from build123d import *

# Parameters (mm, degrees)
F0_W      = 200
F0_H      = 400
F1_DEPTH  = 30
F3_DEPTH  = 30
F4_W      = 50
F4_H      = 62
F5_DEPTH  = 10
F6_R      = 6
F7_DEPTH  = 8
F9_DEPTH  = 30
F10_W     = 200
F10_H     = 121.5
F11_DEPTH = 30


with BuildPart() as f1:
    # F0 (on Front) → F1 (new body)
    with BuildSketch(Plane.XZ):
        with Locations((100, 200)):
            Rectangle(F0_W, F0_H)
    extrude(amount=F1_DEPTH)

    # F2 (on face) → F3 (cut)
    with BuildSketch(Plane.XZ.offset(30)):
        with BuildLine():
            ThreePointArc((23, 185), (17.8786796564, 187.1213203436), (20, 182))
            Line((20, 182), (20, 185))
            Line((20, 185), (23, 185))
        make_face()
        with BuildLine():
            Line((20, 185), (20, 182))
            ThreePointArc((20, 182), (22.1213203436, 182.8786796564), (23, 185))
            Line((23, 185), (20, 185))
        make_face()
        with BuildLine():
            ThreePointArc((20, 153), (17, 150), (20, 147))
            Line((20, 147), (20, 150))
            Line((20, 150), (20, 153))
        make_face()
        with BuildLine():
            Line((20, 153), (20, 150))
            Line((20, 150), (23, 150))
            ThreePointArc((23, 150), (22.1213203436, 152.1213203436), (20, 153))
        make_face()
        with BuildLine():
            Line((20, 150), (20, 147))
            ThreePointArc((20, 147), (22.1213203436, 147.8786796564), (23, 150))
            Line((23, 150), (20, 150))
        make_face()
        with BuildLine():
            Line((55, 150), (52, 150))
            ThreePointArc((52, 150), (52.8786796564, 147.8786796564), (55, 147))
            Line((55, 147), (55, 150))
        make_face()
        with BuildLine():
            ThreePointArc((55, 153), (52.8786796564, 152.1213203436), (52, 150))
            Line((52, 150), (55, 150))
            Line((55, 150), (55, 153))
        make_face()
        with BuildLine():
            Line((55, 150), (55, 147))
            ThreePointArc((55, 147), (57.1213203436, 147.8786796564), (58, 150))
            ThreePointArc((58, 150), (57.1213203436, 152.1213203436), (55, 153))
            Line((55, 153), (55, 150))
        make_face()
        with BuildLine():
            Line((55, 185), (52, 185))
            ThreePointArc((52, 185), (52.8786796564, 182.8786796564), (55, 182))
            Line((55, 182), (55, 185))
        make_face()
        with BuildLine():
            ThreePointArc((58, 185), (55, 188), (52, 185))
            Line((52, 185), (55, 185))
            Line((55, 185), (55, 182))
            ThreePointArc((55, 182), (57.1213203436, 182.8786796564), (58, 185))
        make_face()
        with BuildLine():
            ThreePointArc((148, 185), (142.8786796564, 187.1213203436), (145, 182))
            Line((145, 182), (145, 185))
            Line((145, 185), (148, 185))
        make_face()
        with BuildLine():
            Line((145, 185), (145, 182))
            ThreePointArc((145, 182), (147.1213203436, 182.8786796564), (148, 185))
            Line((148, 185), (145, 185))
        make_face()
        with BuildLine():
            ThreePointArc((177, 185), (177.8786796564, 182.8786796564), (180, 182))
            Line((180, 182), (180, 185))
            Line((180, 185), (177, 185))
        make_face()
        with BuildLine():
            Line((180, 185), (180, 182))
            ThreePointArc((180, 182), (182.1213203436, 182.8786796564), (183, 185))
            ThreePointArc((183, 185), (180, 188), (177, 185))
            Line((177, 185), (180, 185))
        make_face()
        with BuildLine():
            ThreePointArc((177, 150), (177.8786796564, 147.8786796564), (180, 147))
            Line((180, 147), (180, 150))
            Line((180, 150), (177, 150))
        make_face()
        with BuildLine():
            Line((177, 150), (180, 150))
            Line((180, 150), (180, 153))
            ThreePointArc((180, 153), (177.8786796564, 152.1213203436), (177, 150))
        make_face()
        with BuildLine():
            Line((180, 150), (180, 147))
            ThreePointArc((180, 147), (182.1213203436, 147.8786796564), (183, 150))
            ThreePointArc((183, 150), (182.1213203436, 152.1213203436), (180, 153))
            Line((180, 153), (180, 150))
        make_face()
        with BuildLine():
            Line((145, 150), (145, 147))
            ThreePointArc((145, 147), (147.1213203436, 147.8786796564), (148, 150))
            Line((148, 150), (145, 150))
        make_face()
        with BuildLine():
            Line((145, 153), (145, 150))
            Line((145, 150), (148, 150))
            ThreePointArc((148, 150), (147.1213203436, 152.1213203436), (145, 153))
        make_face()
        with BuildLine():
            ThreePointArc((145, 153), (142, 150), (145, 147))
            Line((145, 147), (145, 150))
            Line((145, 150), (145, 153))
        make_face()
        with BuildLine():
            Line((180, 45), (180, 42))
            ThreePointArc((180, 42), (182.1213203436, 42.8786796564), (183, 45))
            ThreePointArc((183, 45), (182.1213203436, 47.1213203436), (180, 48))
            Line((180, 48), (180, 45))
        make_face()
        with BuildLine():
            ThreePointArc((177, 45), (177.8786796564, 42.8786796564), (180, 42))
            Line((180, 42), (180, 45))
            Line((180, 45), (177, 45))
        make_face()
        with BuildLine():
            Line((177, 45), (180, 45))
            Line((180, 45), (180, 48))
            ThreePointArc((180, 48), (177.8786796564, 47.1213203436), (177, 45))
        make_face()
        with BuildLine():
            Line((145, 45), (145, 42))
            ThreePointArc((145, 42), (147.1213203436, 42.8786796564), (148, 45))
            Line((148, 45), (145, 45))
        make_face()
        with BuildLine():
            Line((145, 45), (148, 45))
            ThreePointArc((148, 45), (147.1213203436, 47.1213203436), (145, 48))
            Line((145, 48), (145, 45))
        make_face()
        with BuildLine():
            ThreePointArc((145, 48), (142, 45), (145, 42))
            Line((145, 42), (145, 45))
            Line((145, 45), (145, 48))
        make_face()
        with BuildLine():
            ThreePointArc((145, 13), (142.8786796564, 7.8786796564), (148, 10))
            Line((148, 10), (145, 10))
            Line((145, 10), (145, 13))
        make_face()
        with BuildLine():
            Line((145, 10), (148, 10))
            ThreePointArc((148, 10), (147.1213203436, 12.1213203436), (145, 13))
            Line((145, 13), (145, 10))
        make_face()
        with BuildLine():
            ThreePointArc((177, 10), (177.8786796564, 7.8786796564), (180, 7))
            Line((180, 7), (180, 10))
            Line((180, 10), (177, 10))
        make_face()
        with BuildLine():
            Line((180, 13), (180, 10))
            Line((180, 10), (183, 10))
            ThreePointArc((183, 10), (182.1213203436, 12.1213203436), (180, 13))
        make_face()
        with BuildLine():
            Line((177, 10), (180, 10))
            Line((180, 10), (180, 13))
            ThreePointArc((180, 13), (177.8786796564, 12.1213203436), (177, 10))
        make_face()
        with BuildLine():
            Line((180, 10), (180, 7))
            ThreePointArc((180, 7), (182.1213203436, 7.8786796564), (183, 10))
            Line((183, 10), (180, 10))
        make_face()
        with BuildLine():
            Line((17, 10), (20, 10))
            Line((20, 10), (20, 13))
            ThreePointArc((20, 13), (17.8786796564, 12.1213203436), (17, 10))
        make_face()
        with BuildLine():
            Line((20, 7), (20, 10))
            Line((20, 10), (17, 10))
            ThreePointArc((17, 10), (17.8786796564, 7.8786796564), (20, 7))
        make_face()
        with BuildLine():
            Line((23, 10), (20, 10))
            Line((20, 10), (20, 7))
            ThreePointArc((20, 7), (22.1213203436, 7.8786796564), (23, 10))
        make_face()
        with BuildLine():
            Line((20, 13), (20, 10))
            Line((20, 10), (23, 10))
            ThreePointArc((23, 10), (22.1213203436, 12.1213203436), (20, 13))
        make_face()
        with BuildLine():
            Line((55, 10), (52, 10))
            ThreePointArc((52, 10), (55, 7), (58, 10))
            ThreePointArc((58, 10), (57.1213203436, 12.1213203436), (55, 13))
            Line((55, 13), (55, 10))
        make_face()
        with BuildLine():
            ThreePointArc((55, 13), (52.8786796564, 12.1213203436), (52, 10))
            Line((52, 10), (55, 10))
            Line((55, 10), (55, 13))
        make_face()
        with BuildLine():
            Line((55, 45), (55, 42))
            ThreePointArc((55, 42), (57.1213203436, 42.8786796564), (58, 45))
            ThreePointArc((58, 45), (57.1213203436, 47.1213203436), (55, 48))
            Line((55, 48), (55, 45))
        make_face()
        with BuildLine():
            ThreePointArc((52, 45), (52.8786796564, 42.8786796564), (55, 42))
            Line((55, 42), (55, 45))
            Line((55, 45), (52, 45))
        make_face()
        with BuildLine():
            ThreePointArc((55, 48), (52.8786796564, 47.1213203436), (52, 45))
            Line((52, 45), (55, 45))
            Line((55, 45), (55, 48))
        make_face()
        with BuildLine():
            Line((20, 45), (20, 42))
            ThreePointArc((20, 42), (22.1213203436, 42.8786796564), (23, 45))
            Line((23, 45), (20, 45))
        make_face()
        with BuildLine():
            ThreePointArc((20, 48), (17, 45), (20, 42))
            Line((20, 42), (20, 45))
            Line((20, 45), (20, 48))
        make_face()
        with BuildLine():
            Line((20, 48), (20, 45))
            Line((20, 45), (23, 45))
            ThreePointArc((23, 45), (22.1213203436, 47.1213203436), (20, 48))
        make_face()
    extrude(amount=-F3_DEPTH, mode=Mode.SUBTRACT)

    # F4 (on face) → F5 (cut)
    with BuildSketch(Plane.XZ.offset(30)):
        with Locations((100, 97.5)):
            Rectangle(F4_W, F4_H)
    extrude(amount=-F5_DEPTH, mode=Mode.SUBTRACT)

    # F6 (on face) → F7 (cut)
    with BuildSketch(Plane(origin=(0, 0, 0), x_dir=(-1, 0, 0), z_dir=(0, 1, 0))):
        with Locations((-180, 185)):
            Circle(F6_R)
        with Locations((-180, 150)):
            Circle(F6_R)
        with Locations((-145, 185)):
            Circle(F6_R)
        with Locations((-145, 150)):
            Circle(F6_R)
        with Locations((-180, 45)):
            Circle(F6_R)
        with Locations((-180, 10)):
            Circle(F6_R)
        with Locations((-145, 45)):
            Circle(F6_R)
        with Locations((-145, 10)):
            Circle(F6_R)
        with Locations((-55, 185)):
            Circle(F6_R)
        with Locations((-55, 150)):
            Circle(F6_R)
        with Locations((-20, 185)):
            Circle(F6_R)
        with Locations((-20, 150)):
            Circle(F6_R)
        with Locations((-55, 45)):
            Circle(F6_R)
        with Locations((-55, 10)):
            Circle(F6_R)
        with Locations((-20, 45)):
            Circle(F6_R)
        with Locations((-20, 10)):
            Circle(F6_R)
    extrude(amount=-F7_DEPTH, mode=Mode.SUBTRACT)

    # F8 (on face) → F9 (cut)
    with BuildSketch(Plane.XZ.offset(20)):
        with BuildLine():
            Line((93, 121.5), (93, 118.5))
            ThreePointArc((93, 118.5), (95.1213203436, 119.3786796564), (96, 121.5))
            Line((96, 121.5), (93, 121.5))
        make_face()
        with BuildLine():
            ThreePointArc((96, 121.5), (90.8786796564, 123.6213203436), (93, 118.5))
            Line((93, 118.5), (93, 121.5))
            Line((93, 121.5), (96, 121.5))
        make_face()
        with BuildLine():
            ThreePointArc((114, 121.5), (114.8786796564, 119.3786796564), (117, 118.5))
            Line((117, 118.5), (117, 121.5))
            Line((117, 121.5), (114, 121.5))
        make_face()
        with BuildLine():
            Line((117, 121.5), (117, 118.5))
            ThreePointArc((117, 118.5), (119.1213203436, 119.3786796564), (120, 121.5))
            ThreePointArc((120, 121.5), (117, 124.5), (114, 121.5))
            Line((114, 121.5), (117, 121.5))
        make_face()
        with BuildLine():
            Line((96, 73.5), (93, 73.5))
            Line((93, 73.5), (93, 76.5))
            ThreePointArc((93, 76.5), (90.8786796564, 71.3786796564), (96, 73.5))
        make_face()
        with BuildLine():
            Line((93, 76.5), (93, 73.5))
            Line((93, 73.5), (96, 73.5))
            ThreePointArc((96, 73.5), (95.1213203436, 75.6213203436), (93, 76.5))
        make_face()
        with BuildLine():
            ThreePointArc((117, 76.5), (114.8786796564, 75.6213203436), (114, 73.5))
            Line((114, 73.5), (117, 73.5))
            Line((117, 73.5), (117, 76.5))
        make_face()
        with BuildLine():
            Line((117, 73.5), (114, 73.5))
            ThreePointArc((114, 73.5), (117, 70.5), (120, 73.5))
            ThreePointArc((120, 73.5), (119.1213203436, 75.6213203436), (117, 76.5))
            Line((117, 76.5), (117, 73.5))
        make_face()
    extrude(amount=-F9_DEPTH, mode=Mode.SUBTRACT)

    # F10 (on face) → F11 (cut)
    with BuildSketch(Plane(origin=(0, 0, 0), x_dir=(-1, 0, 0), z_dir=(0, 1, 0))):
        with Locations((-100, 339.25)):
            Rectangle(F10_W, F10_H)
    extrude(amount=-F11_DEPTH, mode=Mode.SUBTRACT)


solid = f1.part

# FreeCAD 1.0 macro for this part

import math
import FreeCAD as App
import Part
import Sketcher
from FreeCAD import Vector

doc = App.newDocument("Part")
body = doc.addObject("PartDesign::Body", "Body")

sketch1 = body.newObject("Sketcher::SketchObject", "Sketch")
sketch1.AttachmentSupport = (doc.getObject("XZ_Plane"), [""])
sketch1.MapMode = "FlatFace"
sketch1.addGeometry([
    Part.LineSegment(Vector(0, 400, 0), Vector(0, 0, 0)),
    Part.LineSegment(Vector(0, 0, 0), Vector(200, 0, 0)),
    Part.LineSegment(Vector(200, 0, 0), Vector(200, 400, 0)),
    Part.LineSegment(Vector(200, 400, 0), Vector(0, 400, 0)),
], False)
sketch1.addConstraint([
    Sketcher.Constraint("Coincident", 0, 2, 1, 1),
    Sketcher.Constraint("Coincident", 1, 2, 2, 1),
    Sketcher.Constraint("Coincident", 2, 2, 3, 1),
    Sketcher.Constraint("Coincident", 3, 2, 0, 1),
    Sketcher.Constraint("Vertical", 0),
    Sketcher.Constraint("Horizontal", 1),
    Sketcher.Constraint("Vertical", 2),
    Sketcher.Constraint("Horizontal", 3),
    Sketcher.Constraint("Coincident", 0, 2, -1, 1),
    Sketcher.Constraint("DistanceX", 1, 1, 1, 2, 200.0),
    Sketcher.Constraint("DistanceY", 0, 2, 0, 1, 400.0),
])
pad1 = body.newObject("PartDesign::Pad", "Pad")
pad1.Profile = sketch1
pad1.Length = 30

sketch2 = body.newObject("Sketcher::SketchObject", "Sketch001")
sketch2.AttachmentSupport = (doc.getObject("XZ_Plane"), [""])
sketch2.MapMode = "FlatFace"
sketch2.AttachmentOffset = App.Placement(Vector(0, 0, 30), App.Rotation())
sketch2.addGeometry([
    Part.ArcOfCircle(Part.Circle(Vector(20, 185, 0), Vector(0, 0, 1), 3), math.radians(0), math.radians(270)),
    Part.ArcOfCircle(Part.Circle(Vector(20, 185, 0), Vector(0, 0, 1), 3), math.radians(-90), math.radians(0)),
    Part.ArcOfCircle(Part.Circle(Vector(20, 150, 0), Vector(0, 0, 1), 3), math.radians(90), math.radians(270)),
    Part.ArcOfCircle(Part.Circle(Vector(20, 150, 0), Vector(0, 0, 1), 3), math.radians(-90), math.radians(0)),
    Part.ArcOfCircle(Part.Circle(Vector(20, 150, 0), Vector(0, 0, 1), 3), math.radians(0), math.radians(90)),
    Part.ArcOfCircle(Part.Circle(Vector(55, 150, 0), Vector(0, 0, 1), 3), math.radians(180), math.radians(270)),
    Part.ArcOfCircle(Part.Circle(Vector(55, 150, 0), Vector(0, 0, 1), 3), math.radians(-90), math.radians(0)),
    Part.ArcOfCircle(Part.Circle(Vector(55, 150, 0), Vector(0, 0, 1), 3), math.radians(0), math.radians(90)),
    Part.ArcOfCircle(Part.Circle(Vector(55, 150, 0), Vector(0, 0, 1), 3), math.radians(90), math.radians(180)),
    Part.ArcOfCircle(Part.Circle(Vector(55, 185, 0), Vector(0, 0, 1), 3), math.radians(180), math.radians(270)),
    Part.ArcOfCircle(Part.Circle(Vector(55, 185, 0), Vector(0, 0, 1), 3), math.radians(-90), math.radians(0)),
    Part.ArcOfCircle(Part.Circle(Vector(55, 185, 0), Vector(0, 0, 1), 3), math.radians(0), math.radians(180)),
    Part.ArcOfCircle(Part.Circle(Vector(145, 185, 0), Vector(0, 0, 1), 3), math.radians(0), math.radians(270)),
    Part.ArcOfCircle(Part.Circle(Vector(145, 185, 0), Vector(0, 0, 1), 3), math.radians(-90), math.radians(0)),
    Part.ArcOfCircle(Part.Circle(Vector(180, 185, 0), Vector(0, 0, 1), 3), math.radians(180), math.radians(270)),
    Part.ArcOfCircle(Part.Circle(Vector(180, 185, 0), Vector(0, 0, 1), 3), math.radians(-90), math.radians(0)),
    Part.ArcOfCircle(Part.Circle(Vector(180, 185, 0), Vector(0, 0, 1), 3), math.radians(0), math.radians(180)),
    Part.ArcOfCircle(Part.Circle(Vector(180, 150, 0), Vector(0, 0, 1), 3), math.radians(180), math.radians(270)),
    Part.ArcOfCircle(Part.Circle(Vector(180, 150, 0), Vector(0, 0, 1), 3), math.radians(-90), math.radians(0)),
    Part.ArcOfCircle(Part.Circle(Vector(180, 150, 0), Vector(0, 0, 1), 3), math.radians(0), math.radians(90)),
    Part.ArcOfCircle(Part.Circle(Vector(180, 150, 0), Vector(0, 0, 1), 3), math.radians(90), math.radians(180)),
    Part.ArcOfCircle(Part.Circle(Vector(145, 150, 0), Vector(0, 0, 1), 3), math.radians(-90), math.radians(0)),
    Part.ArcOfCircle(Part.Circle(Vector(145, 150, 0), Vector(0, 0, 1), 3), math.radians(0), math.radians(90)),
    Part.ArcOfCircle(Part.Circle(Vector(145, 150, 0), Vector(0, 0, 1), 3), math.radians(90), math.radians(270)),
    Part.ArcOfCircle(Part.Circle(Vector(180, 45, 0), Vector(0, 0, 1), 3), math.radians(-90), math.radians(0)),
    Part.ArcOfCircle(Part.Circle(Vector(180, 45, 0), Vector(0, 0, 1), 3), math.radians(0), math.radians(90)),
    Part.ArcOfCircle(Part.Circle(Vector(180, 45, 0), Vector(0, 0, 1), 3), math.radians(90), math.radians(180)),
    Part.ArcOfCircle(Part.Circle(Vector(180, 45, 0), Vector(0, 0, 1), 3), math.radians(180), math.radians(270)),
    Part.ArcOfCircle(Part.Circle(Vector(145, 45, 0), Vector(0, 0, 1), 3), math.radians(-90), math.radians(0)),
    Part.ArcOfCircle(Part.Circle(Vector(145, 45, 0), Vector(0, 0, 1), 3), math.radians(0), math.radians(90)),
    Part.ArcOfCircle(Part.Circle(Vector(145, 45, 0), Vector(0, 0, 1), 3), math.radians(90), math.radians(270)),
    Part.ArcOfCircle(Part.Circle(Vector(145, 10, 0), Vector(0, 0, 1), 3), math.radians(90), math.radians(360)),
    Part.ArcOfCircle(Part.Circle(Vector(145, 10, 0), Vector(0, 0, 1), 3), math.radians(0), math.radians(90)),
    Part.ArcOfCircle(Part.Circle(Vector(180, 10, 0), Vector(0, 0, 1), 3), math.radians(180), math.radians(270)),
    Part.ArcOfCircle(Part.Circle(Vector(180, 10, 0), Vector(0, 0, 1), 3), math.radians(-90), math.radians(0)),
    Part.ArcOfCircle(Part.Circle(Vector(180, 10, 0), Vector(0, 0, 1), 3), math.radians(0), math.radians(90)),
    Part.ArcOfCircle(Part.Circle(Vector(180, 10, 0), Vector(0, 0, 1), 3), math.radians(90), math.radians(180)),
    Part.ArcOfCircle(Part.Circle(Vector(20, 10, 0), Vector(0, 0, 1), 3), math.radians(90), math.radians(180)),
    Part.ArcOfCircle(Part.Circle(Vector(20, 10, 0), Vector(0, 0, 1), 3), math.radians(180), math.radians(270)),
    Part.ArcOfCircle(Part.Circle(Vector(20, 10, 0), Vector(0, 0, 1), 3), math.radians(-90), math.radians(0)),
    Part.ArcOfCircle(Part.Circle(Vector(20, 10, 0), Vector(0, 0, 1), 3), math.radians(0), math.radians(90)),
    Part.ArcOfCircle(Part.Circle(Vector(55, 10, 0), Vector(0, 0, 1), 3), math.radians(180), math.radians(360)),
    Part.ArcOfCircle(Part.Circle(Vector(55, 10, 0), Vector(0, 0, 1), 3), math.radians(0), math.radians(90)),
    Part.ArcOfCircle(Part.Circle(Vector(55, 10, 0), Vector(0, 0, 1), 3), math.radians(90), math.radians(180)),
    Part.ArcOfCircle(Part.Circle(Vector(55, 45, 0), Vector(0, 0, 1), 3), math.radians(-90), math.radians(0)),
    Part.ArcOfCircle(Part.Circle(Vector(55, 45, 0), Vector(0, 0, 1), 3), math.radians(0), math.radians(90)),
    Part.ArcOfCircle(Part.Circle(Vector(55, 45, 0), Vector(0, 0, 1), 3), math.radians(90), math.radians(180)),
    Part.ArcOfCircle(Part.Circle(Vector(55, 45, 0), Vector(0, 0, 1), 3), math.radians(180), math.radians(270)),
    Part.ArcOfCircle(Part.Circle(Vector(20, 45, 0), Vector(0, 0, 1), 3), math.radians(-90), math.radians(0)),
    Part.ArcOfCircle(Part.Circle(Vector(20, 45, 0), Vector(0, 0, 1), 3), math.radians(0), math.radians(90)),
    Part.ArcOfCircle(Part.Circle(Vector(20, 45, 0), Vector(0, 0, 1), 3), math.radians(90), math.radians(270)),
], False)
sketch2.addConstraint([
    Sketcher.Constraint("Tangent", 0, 1, 1, 2),
    Sketcher.Constraint("Coincident", 1, 1, 0, 2),
    Sketcher.Constraint("Tangent", 2, 2, 3, 1),
    Sketcher.Constraint("Tangent", 3, 2, 4, 1),
    Sketcher.Constraint("Tangent", 4, 2, 2, 1),
    Sketcher.Constraint("Tangent", 5, 2, 6, 1),
    Sketcher.Constraint("Tangent", 6, 2, 7, 1),
    Sketcher.Constraint("Tangent", 7, 2, 8, 1),
    Sketcher.Constraint("Tangent", 8, 2, 5, 1),
    Sketcher.Constraint("Tangent", 9, 2, 10, 1),
    Sketcher.Constraint("Tangent", 10, 2, 11, 1),
    Sketcher.Constraint("Tangent", 11, 2, 9, 1),
    Sketcher.Constraint("Tangent", 12, 1, 13, 2),
    Sketcher.Constraint("Coincident", 13, 1, 12, 2),
    Sketcher.Constraint("Tangent", 14, 2, 15, 1),
    Sketcher.Constraint("Tangent", 15, 2, 16, 1),
    Sketcher.Constraint("Tangent", 16, 2, 14, 1),
    Sketcher.Constraint("Tangent", 17, 2, 18, 1),
    Sketcher.Constraint("Tangent", 18, 2, 19, 1),
    Sketcher.Constraint("Tangent", 19, 2, 20, 1),
    Sketcher.Constraint("Tangent", 20, 2, 17, 1),
    Sketcher.Constraint("Tangent", 21, 2, 22, 1),
    Sketcher.Constraint("Tangent", 22, 2, 23, 1),
    Sketcher.Constraint("Tangent", 23, 2, 21, 1),
    Sketcher.Constraint("Tangent", 24, 2, 25, 1),
    Sketcher.Constraint("Tangent", 25, 2, 26, 1),
    Sketcher.Constraint("Tangent", 26, 2, 27, 1),
    Sketcher.Constraint("Tangent", 27, 2, 24, 1),
    Sketcher.Constraint("Tangent", 28, 2, 29, 1),
    Sketcher.Constraint("Tangent", 29, 2, 30, 1),
    Sketcher.Constraint("Tangent", 30, 2, 28, 1),
    Sketcher.Constraint("Tangent", 31, 1, 32, 2),
    Sketcher.Constraint("Coincident", 32, 1, 31, 2),
    Sketcher.Constraint("Tangent", 33, 2, 34, 1),
    Sketcher.Constraint("Tangent", 34, 2, 35, 1),
    Sketcher.Constraint("Tangent", 35, 2, 36, 1),
    Sketcher.Constraint("Tangent", 36, 2, 33, 1),
    Sketcher.Constraint("Tangent", 37, 2, 38, 1),
    Sketcher.Constraint("Tangent", 38, 2, 39, 1),
    Sketcher.Constraint("Tangent", 39, 2, 40, 1),
    Sketcher.Constraint("Tangent", 40, 2, 37, 1),
    Sketcher.Constraint("Tangent", 41, 2, 42, 1),
    Sketcher.Constraint("Tangent", 42, 2, 43, 1),
    Sketcher.Constraint("Tangent", 43, 2, 41, 1),
    Sketcher.Constraint("Tangent", 44, 2, 45, 1),
    Sketcher.Constraint("Tangent", 45, 2, 46, 1),
    Sketcher.Constraint("Tangent", 46, 2, 47, 1),
    Sketcher.Constraint("Tangent", 47, 2, 44, 1),
    Sketcher.Constraint("Tangent", 48, 2, 49, 1),
    Sketcher.Constraint("Tangent", 49, 2, 50, 1),
    Sketcher.Constraint("Tangent", 50, 2, 48, 1),
    Sketcher.Constraint("Equal", 1, 2),
    Sketcher.Constraint("Equal", 4, 5),
    Sketcher.Constraint("Equal", 5, 6),
    Sketcher.Constraint("Equal", 8, 9),
    Sketcher.Constraint("Equal", 11, 12),
    Sketcher.Constraint("Equal", 13, 14),
    Sketcher.Constraint("Equal", 16, 17),
    Sketcher.Constraint("Equal", 17, 18),
    Sketcher.Constraint("Equal", 20, 21),
    Sketcher.Constraint("Equal", 23, 24),
    Sketcher.Constraint("Equal", 24, 25),
    Sketcher.Constraint("Equal", 27, 28),
    Sketcher.Constraint("Equal", 30, 31),
    Sketcher.Constraint("Equal", 32, 33),
    Sketcher.Constraint("Equal", 33, 34),
    Sketcher.Constraint("Equal", 36, 37),
    Sketcher.Constraint("Equal", 37, 38),
    Sketcher.Constraint("Equal", 40, 41),
    Sketcher.Constraint("Equal", 43, 44),
    Sketcher.Constraint("Equal", 44, 45),
    Sketcher.Constraint("Equal", 47, 48),
    Sketcher.Constraint("Horizontal", 4, 3, 5, 3),
    Sketcher.Constraint("Horizontal", 1, 3, 9, 3),
    Sketcher.Constraint("Horizontal", 11, 3, 12, 3),
    Sketcher.Constraint("Horizontal", 13, 3, 14, 3),
    Sketcher.Constraint("Horizontal", 8, 3, 17, 3),
    Sketcher.Constraint("Horizontal", 20, 3, 21, 3),
    Sketcher.Constraint("Horizontal", 27, 3, 28, 3),
    Sketcher.Constraint("Horizontal", 32, 3, 33, 3),
    Sketcher.Constraint("Horizontal", 36, 3, 37, 3),
    Sketcher.Constraint("Horizontal", 40, 3, 41, 3),
    Sketcher.Constraint("Horizontal", 30, 3, 44, 3),
    Sketcher.Constraint("Horizontal", 47, 3, 48, 3),
    Sketcher.Constraint("Horizontal", 16, 3, 0, 1),
    Sketcher.Constraint("Horizontal", 23, 3, 3, 2),
    Sketcher.Constraint("Horizontal", 3, 2, 6, 2),
    Sketcher.Constraint("Horizontal", 6, 2, 8, 2),
    Sketcher.Constraint("Horizontal", 0, 1, 10, 2),
    Sketcher.Constraint("Horizontal", 10, 2, 11, 2),
    Sketcher.Constraint("Horizontal", 11, 2, 12, 1),
    Sketcher.Constraint("Horizontal", 12, 1, 15, 2),
    Sketcher.Constraint("Horizontal", 15, 2, 16, 2),
    Sketcher.Constraint("Horizontal", 8, 2, 18, 2),
    Sketcher.Constraint("Horizontal", 18, 2, 20, 2),
    Sketcher.Constraint("Horizontal", 20, 2, 21, 2),
    Sketcher.Constraint("Horizontal", 50, 3, 24, 2),
    Sketcher.Constraint("Horizontal", 24, 2, 26, 2),
    Sketcher.Constraint("Horizontal", 26, 2, 28, 2),
    Sketcher.Constraint("Horizontal", 43, 3, 32, 1),
    Sketcher.Constraint("Horizontal", 32, 1, 34, 2),
    Sketcher.Constraint("Horizontal", 34, 2, 36, 2),
    Sketcher.Constraint("Horizontal", 36, 2, 37, 2),
    Sketcher.Constraint("Horizontal", 37, 2, 39, 2),
    Sketcher.Constraint("Horizontal", 39, 2, 41, 2),
    Sketcher.Constraint("Horizontal", 41, 2, 43, 2),
    Sketcher.Constraint("Horizontal", 28, 2, 44, 2),
    Sketcher.Constraint("Horizontal", 44, 2, 46, 2),
    Sketcher.Constraint("Horizontal", 46, 2, 48, 2),
    Sketcher.Constraint("Vertical", 1, 3, 2, 3),
    Sketcher.Constraint("Vertical", 8, 3, 9, 3),
    Sketcher.Constraint("Vertical", 16, 3, 17, 3),
    Sketcher.Constraint("Vertical", 13, 3, 21, 3),
    Sketcher.Constraint("Vertical", 20, 3, 24, 3),
    Sketcher.Constraint("Vertical", 23, 3, 28, 3),
    Sketcher.Constraint("Vertical", 30, 3, 31, 3),
    Sketcher.Constraint("Vertical", 27, 3, 33, 3),
    Sketcher.Constraint("Vertical", 4, 3, 37, 3),
    Sketcher.Constraint("Vertical", 11, 3, 41, 3),
    Sketcher.Constraint("Vertical", 43, 3, 44, 3),
    Sketcher.Constraint("Vertical", 40, 3, 48, 3),
    Sketcher.Constraint("Vertical", 50, 3, 1, 1),
    Sketcher.Constraint("Vertical", 1, 1, 2, 2),
    Sketcher.Constraint("Vertical", 2, 2, 4, 2),
    Sketcher.Constraint("Vertical", 47, 3, 5, 2),
    Sketcher.Constraint("Vertical", 5, 2, 7, 2),
    Sketcher.Constraint("Vertical", 7, 2, 9, 2),
    Sketcher.Constraint("Vertical", 32, 3, 13, 1),
    Sketcher.Constraint("Vertical", 36, 3, 14, 2),
    Sketcher.Constraint("Vertical", 14, 2, 17, 2),
    Sketcher.Constraint("Vertical", 17, 2, 19, 2),
    Sketcher.Constraint("Vertical", 13, 1, 22, 2),
    Sketcher.Constraint("Vertical", 22, 2, 23, 2),
    Sketcher.Constraint("Vertical", 19, 2, 25, 2),
    Sketcher.Constraint("Vertical", 25, 2, 27, 2),
    Sketcher.Constraint("Vertical", 23, 2, 29, 2),
    Sketcher.Constraint("Vertical", 29, 2, 30, 2),
    Sketcher.Constraint("Vertical", 30, 2, 31, 1),
    Sketcher.Constraint("Vertical", 27, 2, 33, 2),
    Sketcher.Constraint("Vertical", 33, 2, 35, 2),
    Sketcher.Constraint("Vertical", 4, 2, 38, 2),
    Sketcher.Constraint("Vertical", 38, 2, 40, 2),
    Sketcher.Constraint("Vertical", 9, 2, 42, 2),
    Sketcher.Constraint("Vertical", 42, 2, 45, 2),
    Sketcher.Constraint("Vertical", 45, 2, 47, 2),
    Sketcher.Constraint("Vertical", 40, 2, 49, 2),
    Sketcher.Constraint("Vertical", 49, 2, 50, 2),
    Sketcher.Constraint("Radius", 0, 3.0),
    Sketcher.Constraint("DistanceX", -1, 1, 0, 3, 20.0),
    Sketcher.Constraint("DistanceY", -1, 1, 0, 3, 185.0),
    Sketcher.Constraint("DistanceY", -1, 1, 2, 3, 150.0),
    Sketcher.Constraint("DistanceX", -1, 1, 5, 3, 55.0),
    Sketcher.Constraint("DistanceX", -1, 1, 12, 3, 145.0),
    Sketcher.Constraint("DistanceX", -1, 1, 14, 3, 180.0),
    Sketcher.Constraint("DistanceY", -1, 1, 24, 3, 45.0),
    Sketcher.Constraint("DistanceY", -1, 1, 31, 3, 10.0),
])
pocket1 = body.newObject("PartDesign::Pocket", "Pocket")
pocket1.Profile = sketch2
pocket1.Length = 30

sketch3 = body.newObject("Sketcher::SketchObject", "Sketch002")
sketch3.AttachmentSupport = (doc.getObject("XZ_Plane"), [""])
sketch3.MapMode = "FlatFace"
sketch3.AttachmentOffset = App.Placement(Vector(0, 0, 30), App.Rotation())
sketch3.addGeometry([
    Part.LineSegment(Vector(75, 128, 0), Vector(75, 66, 0)),
    Part.LineSegment(Vector(75, 66, 0), Vector(125, 66, 0)),
    Part.LineSegment(Vector(125, 66, 0), Vector(125, 128, 0)),
    Part.LineSegment(Vector(125, 128, 0), Vector(75, 128, 0)),
], False)
sketch3.addConstraint([
    Sketcher.Constraint("Coincident", 0, 2, 1, 1),
    Sketcher.Constraint("Coincident", 1, 2, 2, 1),
    Sketcher.Constraint("Coincident", 2, 2, 3, 1),
    Sketcher.Constraint("Coincident", 3, 2, 0, 1),
    Sketcher.Constraint("Vertical", 0),
    Sketcher.Constraint("Horizontal", 1),
    Sketcher.Constraint("Vertical", 2),
    Sketcher.Constraint("Horizontal", 3),
    Sketcher.Constraint("DistanceX", 1, 1, 1, 2, 50.0),
    Sketcher.Constraint("DistanceY", 0, 2, 0, 1, 62.0),
    Sketcher.Constraint("DistanceX", -1, 1, 0, 2, 75.0),
    Sketcher.Constraint("DistanceY", -1, 1, 0, 2, 66.5),
])
pocket2 = body.newObject("PartDesign::Pocket", "Pocket001")
pocket2.Profile = sketch3
pocket2.Length = 10

sketch4 = body.newObject("Sketcher::SketchObject", "Sketch003")
sketch4.AttachmentSupport = (doc.getObject("XZ_Plane"), [""])
sketch4.MapMode = "FlatFace"
sketch4.addGeometry([
    Part.Circle(Vector(180, 185, 0), Vector(0, 0, 1), 6),
    Part.Circle(Vector(180, 150, 0), Vector(0, 0, 1), 6),
    Part.Circle(Vector(145, 185, 0), Vector(0, 0, 1), 6),
    Part.Circle(Vector(145, 150, 0), Vector(0, 0, 1), 6),
    Part.Circle(Vector(180, 45, 0), Vector(0, 0, 1), 6),
    Part.Circle(Vector(180, 10, 0), Vector(0, 0, 1), 6),
    Part.Circle(Vector(145, 45, 0), Vector(0, 0, 1), 6),
    Part.Circle(Vector(145, 10, 0), Vector(0, 0, 1), 6),
    Part.Circle(Vector(55, 185, 0), Vector(0, 0, 1), 6),
    Part.Circle(Vector(55, 150, 0), Vector(0, 0, 1), 6),
    Part.Circle(Vector(20, 185, 0), Vector(0, 0, 1), 6),
    Part.Circle(Vector(20, 150, 0), Vector(0, 0, 1), 6),
    Part.Circle(Vector(55, 45, 0), Vector(0, 0, 1), 6),
    Part.Circle(Vector(55, 10, 0), Vector(0, 0, 1), 6),
    Part.Circle(Vector(20, 45, 0), Vector(0, 0, 1), 6),
    Part.Circle(Vector(20, 10, 0), Vector(0, 0, 1), 6),
], False)
sketch4.addConstraint([
    Sketcher.Constraint("Equal", 0, 1),
    Sketcher.Constraint("Equal", 1, 2),
    Sketcher.Constraint("Equal", 2, 3),
    Sketcher.Constraint("Equal", 3, 4),
    Sketcher.Constraint("Equal", 4, 5),
    Sketcher.Constraint("Equal", 5, 6),
    Sketcher.Constraint("Equal", 6, 7),
    Sketcher.Constraint("Equal", 7, 8),
    Sketcher.Constraint("Equal", 8, 9),
    Sketcher.Constraint("Equal", 9, 10),
    Sketcher.Constraint("Equal", 10, 11),
    Sketcher.Constraint("Equal", 11, 12),
    Sketcher.Constraint("Equal", 12, 13),
    Sketcher.Constraint("Equal", 13, 14),
    Sketcher.Constraint("Equal", 14, 15),
    Sketcher.Constraint("Horizontal", 0, 3, 2, 3),
    Sketcher.Constraint("Horizontal", 1, 3, 3, 3),
    Sketcher.Constraint("Horizontal", 4, 3, 6, 3),
    Sketcher.Constraint("Horizontal", 5, 3, 7, 3),
    Sketcher.Constraint("Horizontal", 2, 3, 8, 3),
    Sketcher.Constraint("Horizontal", 3, 3, 9, 3),
    Sketcher.Constraint("Horizontal", 8, 3, 10, 3),
    Sketcher.Constraint("Horizontal", 9, 3, 11, 3),
    Sketcher.Constraint("Horizontal", 6, 3, 12, 3),
    Sketcher.Constraint("Horizontal", 7, 3, 13, 3),
    Sketcher.Constraint("Horizontal", 12, 3, 14, 3),
    Sketcher.Constraint("Horizontal", 13, 3, 15, 3),
    Sketcher.Constraint("Vertical", 0, 3, 1, 3),
    Sketcher.Constraint("Vertical", 2, 3, 3, 3),
    Sketcher.Constraint("Vertical", 1, 3, 4, 3),
    Sketcher.Constraint("Vertical", 4, 3, 5, 3),
    Sketcher.Constraint("Vertical", 3, 3, 6, 3),
    Sketcher.Constraint("Vertical", 6, 3, 7, 3),
    Sketcher.Constraint("Vertical", 8, 3, 9, 3),
    Sketcher.Constraint("Vertical", 10, 3, 11, 3),
    Sketcher.Constraint("Vertical", 9, 3, 12, 3),
    Sketcher.Constraint("Vertical", 12, 3, 13, 3),
    Sketcher.Constraint("Vertical", 11, 3, 14, 3),
    Sketcher.Constraint("Vertical", 14, 3, 15, 3),
    Sketcher.Constraint("Diameter", 0, 12.0),
    Sketcher.Constraint("DistanceX", -1, 1, 0, 3, 180.0),
    Sketcher.Constraint("DistanceY", -1, 1, 0, 3, 185.0),
    Sketcher.Constraint("DistanceY", -1, 1, 1, 3, 150.0),
    Sketcher.Constraint("DistanceX", -1, 1, 2, 3, 145.0),
    Sketcher.Constraint("DistanceY", -1, 1, 4, 3, 45.0),
    Sketcher.Constraint("DistanceY", -1, 1, 5, 3, 10.0),
    Sketcher.Constraint("DistanceX", -1, 1, 8, 3, 55.0),
    Sketcher.Constraint("DistanceX", -1, 1, 10, 3, 20.0),
])
pocket3 = body.newObject("PartDesign::Pocket", "Pocket002")
pocket3.Profile = sketch4
pocket3.Length = 8
pocket3.Reversed = True

sketch5 = body.newObject("Sketcher::SketchObject", "Sketch004")
sketch5.AttachmentSupport = (doc.getObject("XZ_Plane"), [""])
sketch5.MapMode = "FlatFace"
sketch5.AttachmentOffset = App.Placement(Vector(0, 0, 20), App.Rotation())
sketch5.addGeometry([
    Part.ArcOfCircle(Part.Circle(Vector(93, 121.5, 0), Vector(0, 0, 1), 3), math.radians(-90), math.radians(0)),
    Part.ArcOfCircle(Part.Circle(Vector(93, 121.5, 0), Vector(0, 0, 1), 3), math.radians(0), math.radians(270)),
    Part.ArcOfCircle(Part.Circle(Vector(117, 121.5, 0), Vector(0, 0, 1), 3), math.radians(180), math.radians(270)),
    Part.ArcOfCircle(Part.Circle(Vector(117, 121.5, 0), Vector(0, 0, 1), 3), math.radians(-90), math.radians(0)),
    Part.ArcOfCircle(Part.Circle(Vector(117, 121.5, 0), Vector(0, 0, 1), 3), math.radians(0), math.radians(180)),
    Part.ArcOfCircle(Part.Circle(Vector(93, 73.5, 0), Vector(0, 0, 1), 3), math.radians(90), math.radians(360)),
    Part.ArcOfCircle(Part.Circle(Vector(93, 73.5, 0), Vector(0, 0, 1), 3), math.radians(0), math.radians(90)),
    Part.ArcOfCircle(Part.Circle(Vector(117, 73.5, 0), Vector(0, 0, 1), 3), math.radians(90), math.radians(180)),
    Part.ArcOfCircle(Part.Circle(Vector(117, 73.5, 0), Vector(0, 0, 1), 3), math.radians(180), math.radians(360)),
    Part.ArcOfCircle(Part.Circle(Vector(117, 73.5, 0), Vector(0, 0, 1), 3), math.radians(0), math.radians(90)),
], False)
sketch5.addConstraint([
    Sketcher.Constraint("Tangent", 0, 1, 1, 2),
    Sketcher.Constraint("Coincident", 1, 1, 0, 2),
    Sketcher.Constraint("Tangent", 2, 2, 3, 1),
    Sketcher.Constraint("Tangent", 3, 2, 4, 1),
    Sketcher.Constraint("Tangent", 4, 2, 2, 1),
    Sketcher.Constraint("Tangent", 5, 1, 6, 2),
    Sketcher.Constraint("Coincident", 6, 1, 5, 2),
    Sketcher.Constraint("Tangent", 7, 2, 8, 1),
    Sketcher.Constraint("Tangent", 8, 2, 9, 1),
    Sketcher.Constraint("Tangent", 9, 2, 7, 1),
    Sketcher.Constraint("Equal", 1, 2),
    Sketcher.Constraint("Equal", 4, 5),
    Sketcher.Constraint("Equal", 6, 7),
    Sketcher.Constraint("Horizontal", 1, 3, 2, 3),
    Sketcher.Constraint("Horizontal", 6, 3, 7, 3),
    Sketcher.Constraint("Horizontal", 4, 3, 1, 1),
    Sketcher.Constraint("Horizontal", 1, 1, 3, 2),
    Sketcher.Constraint("Horizontal", 3, 2, 4, 2),
    Sketcher.Constraint("Horizontal", 9, 3, 6, 1),
    Sketcher.Constraint("Horizontal", 6, 1, 7, 2),
    Sketcher.Constraint("Horizontal", 7, 2, 8, 2),
    Sketcher.Constraint("Vertical", 1, 3, 5, 3),
    Sketcher.Constraint("Vertical", 4, 3, 7, 3),
    Sketcher.Constraint("Vertical", 6, 3, 0, 1),
    Sketcher.Constraint("Vertical", 9, 3, 2, 2),
    Sketcher.Constraint("Vertical", 0, 1, 5, 1),
    Sketcher.Constraint("Vertical", 2, 2, 9, 2),
    Sketcher.Constraint("Radius", 0, 3.0),
    Sketcher.Constraint("DistanceX", -1, 1, 0, 3, 93.0),
    Sketcher.Constraint("DistanceX", -1, 1, 2, 3, 117.0),
    Sketcher.Constraint("DistanceY", 5, 3, 0, 3, 48.0),
    Sketcher.Constraint("DistanceY", -1, 1, 0, 3, 121.5),
])
pocket4 = body.newObject("PartDesign::Pocket", "Pocket003")
pocket4.Profile = sketch5
pocket4.Length = 30

sketch6 = body.newObject("Sketcher::SketchObject", "Sketch005")
sketch6.AttachmentSupport = (doc.getObject("XZ_Plane"), [""])
sketch6.MapMode = "FlatFace"
sketch6.addGeometry([
    Part.LineSegment(Vector(200, 400, 0), Vector(200, 278, 0)),
    Part.LineSegment(Vector(200, 278, 0), Vector(0, 278, 0)),
    Part.LineSegment(Vector(0, 278, 0), Vector(0, 400, 0)),
    Part.LineSegment(Vector(0, 400, 0), Vector(200, 400, 0)),
], False)
sketch6.addConstraint([
    Sketcher.Constraint("Coincident", 0, 2, 1, 1),
    Sketcher.Constraint("Coincident", 1, 2, 2, 1),
    Sketcher.Constraint("Coincident", 2, 2, 3, 1),
    Sketcher.Constraint("Coincident", 3, 2, 0, 1),
    Sketcher.Constraint("Vertical", 0),
    Sketcher.Constraint("Horizontal", 1),
    Sketcher.Constraint("Vertical", 2),
    Sketcher.Constraint("Horizontal", 3),
    Sketcher.Constraint("PointOnObject", 1, 2, -2),
    Sketcher.Constraint("DistanceX", 1, 2, 1, 1, 200.0),
    Sketcher.Constraint("DistanceY", 0, 2, 0, 1, 121.5),
    Sketcher.Constraint("DistanceY", -1, 1, 2, 2, 400.0),
])
pocket5 = body.newObject("PartDesign::Pocket", "Pocket004")
pocket5.Profile = sketch6
pocket5.Length = 30
pocket5.Reversed = True

doc.recompute()
